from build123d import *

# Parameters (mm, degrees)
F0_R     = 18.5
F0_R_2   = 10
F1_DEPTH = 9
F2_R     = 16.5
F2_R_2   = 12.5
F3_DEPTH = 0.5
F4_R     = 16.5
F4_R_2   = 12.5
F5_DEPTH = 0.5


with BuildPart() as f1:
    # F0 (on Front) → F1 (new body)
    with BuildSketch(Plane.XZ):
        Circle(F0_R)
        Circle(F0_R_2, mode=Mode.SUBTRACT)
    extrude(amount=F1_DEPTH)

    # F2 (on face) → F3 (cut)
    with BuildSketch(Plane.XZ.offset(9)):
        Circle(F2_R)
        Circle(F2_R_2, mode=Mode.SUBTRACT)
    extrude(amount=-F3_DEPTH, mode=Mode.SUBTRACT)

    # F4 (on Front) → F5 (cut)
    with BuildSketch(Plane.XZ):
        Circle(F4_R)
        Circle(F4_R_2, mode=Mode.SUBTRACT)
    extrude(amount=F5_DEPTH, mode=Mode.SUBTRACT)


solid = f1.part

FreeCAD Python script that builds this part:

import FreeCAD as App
import Part
import Sketcher
from FreeCAD import Vector

doc = App.newDocument("Part")
params = doc.addObject("Spreadsheet::Sheet", "Params")
for row, (alias, value) in enumerate([
    ("sketch1_diameter", "37 mm"),
    ("sketch1_diameter2", "20 mm"),
    ("pad1_length", "9 mm"),
    ("sketch2_diameter", "33 mm"),
    ("sketch2_diameter2", "25 mm"),
    ("pocket1_length", "0.5 mm"),
    ("sketch3_diameter", "33 mm"),
    ("sketch3_diameter2", "25 mm"),
    ("pocket2_length", "0.5 mm"),
], start=1):
    params.set(f"A{row}", alias)
    params.set(f"B{row}", "=" + value)
    params.setAlias(f"B{row}", alias)

body = doc.addObject("PartDesign::Body", "Body")

# Sketch on XZ plane
sketch1 = body.newObject("Sketcher::SketchObject", "Sketch")
sketch1.AttachmentSupport = (doc.getObject("XZ_Plane"), [""])
sketch1.MapMode = "FlatFace"
sketch1.addGeometry([
    Part.Circle(Vector(0, 0, 0), Vector(0, 0, 1), 18.5),
    Part.Circle(Vector(0, 0, 0), Vector(0, 0, 1), 10),
], False)
sketch1.addConstraint([
    Sketcher.Constraint("Coincident", 0, 3, -1, 1),
    Sketcher.Constraint("Coincident", 1, 3, -1, 1),
    Sketcher.Constraint("Diameter", 0, 37.0),
    Sketcher.Constraint("Diameter", 1, 20.0),
])
sketch1.setExpression("Constraints[2]", "Params.sketch1_diameter")
sketch1.setExpression("Constraints[3]", "Params.sketch1_diameter2")
pad1 = body.newObject("PartDesign::Pad", "Pad")
pad1.Profile = sketch1
pad1.setExpression("Length", "Params.pad1_length")

# Sketch on XZ plane
sketch2 = body.newObject("Sketcher::SketchObject", "Sketch001")
sketch2.AttachmentSupport = (doc.getObject("XZ_Plane"), [""])
sketch2.MapMode = "FlatFace"
sketch2.AttachmentOffset = App.Placement(Vector(0, 0, 9), App.Rotation())
sketch2.addGeometry([
    Part.Circle(Vector(0, 0, 0), Vector(0, 0, 1), 16.5),
    Part.Circle(Vector(0, 0, 0), Vector(0, 0, 1), 12.5),
], False)
sketch2.addConstraint([
    Sketcher.Constraint("Coincident", 0, 3, -1, 1),
    Sketcher.Constraint("Coincident", 1, 3, -1, 1),
    Sketcher.Constraint("Diameter", 0, 33.0),
    Sketcher.Constraint("Diameter", 1, 25.0),
])
sketch2.setExpression("Constraints[2]", "Params.sketch2_diameter")
sketch2.setExpression("Constraints[3]", "Params.sketch2_diameter2")
pocket1 = body.newObject("PartDesign::Pocket", "Pocket")
pocket1.Profile = sketch2
pocket1.setExpression("Length", "Params.pocket1_length")

# Sketch on XZ plane
sketch3 = body.newObject("Sketcher::SketchObject", "Sketch002")
sketch3.AttachmentSupport = (doc.getObject("XZ_Plane"), [""])
sketch3.MapMode = "FlatFace"
sketch3.addGeometry([
    Part.Circle(Vector(0, 0, 0), Vector(0, 0, 1), 16.5),
    Part.Circle(Vector(0, 0, 0), Vector(0, 0, 1), 12.5),
], False)
sketch3.addConstraint([
    Sketcher.Constraint("Coincident", 0, 3, -1, 1),
    Sketcher.Constraint("Coincident", 1, 3, -1, 1),
    Sketcher.Constraint("Diameter", 0, 33.0),
    Sketcher.Constraint("Diameter", 1, 25.0),
])
sketch3.setExpression("Constraints[2]", "Params.sketch3_diameter")
sketch3.setExpression("Constraints[3]", "Params.sketch3_diameter2")
pocket2 = body.newObject("PartDesign::Pocket", "Pocket001")
pocket2.Profile = sketch3
pocket2.setExpression("Length", "Params.pocket2_length")
pocket2.Reversed = True

doc.recompute()
